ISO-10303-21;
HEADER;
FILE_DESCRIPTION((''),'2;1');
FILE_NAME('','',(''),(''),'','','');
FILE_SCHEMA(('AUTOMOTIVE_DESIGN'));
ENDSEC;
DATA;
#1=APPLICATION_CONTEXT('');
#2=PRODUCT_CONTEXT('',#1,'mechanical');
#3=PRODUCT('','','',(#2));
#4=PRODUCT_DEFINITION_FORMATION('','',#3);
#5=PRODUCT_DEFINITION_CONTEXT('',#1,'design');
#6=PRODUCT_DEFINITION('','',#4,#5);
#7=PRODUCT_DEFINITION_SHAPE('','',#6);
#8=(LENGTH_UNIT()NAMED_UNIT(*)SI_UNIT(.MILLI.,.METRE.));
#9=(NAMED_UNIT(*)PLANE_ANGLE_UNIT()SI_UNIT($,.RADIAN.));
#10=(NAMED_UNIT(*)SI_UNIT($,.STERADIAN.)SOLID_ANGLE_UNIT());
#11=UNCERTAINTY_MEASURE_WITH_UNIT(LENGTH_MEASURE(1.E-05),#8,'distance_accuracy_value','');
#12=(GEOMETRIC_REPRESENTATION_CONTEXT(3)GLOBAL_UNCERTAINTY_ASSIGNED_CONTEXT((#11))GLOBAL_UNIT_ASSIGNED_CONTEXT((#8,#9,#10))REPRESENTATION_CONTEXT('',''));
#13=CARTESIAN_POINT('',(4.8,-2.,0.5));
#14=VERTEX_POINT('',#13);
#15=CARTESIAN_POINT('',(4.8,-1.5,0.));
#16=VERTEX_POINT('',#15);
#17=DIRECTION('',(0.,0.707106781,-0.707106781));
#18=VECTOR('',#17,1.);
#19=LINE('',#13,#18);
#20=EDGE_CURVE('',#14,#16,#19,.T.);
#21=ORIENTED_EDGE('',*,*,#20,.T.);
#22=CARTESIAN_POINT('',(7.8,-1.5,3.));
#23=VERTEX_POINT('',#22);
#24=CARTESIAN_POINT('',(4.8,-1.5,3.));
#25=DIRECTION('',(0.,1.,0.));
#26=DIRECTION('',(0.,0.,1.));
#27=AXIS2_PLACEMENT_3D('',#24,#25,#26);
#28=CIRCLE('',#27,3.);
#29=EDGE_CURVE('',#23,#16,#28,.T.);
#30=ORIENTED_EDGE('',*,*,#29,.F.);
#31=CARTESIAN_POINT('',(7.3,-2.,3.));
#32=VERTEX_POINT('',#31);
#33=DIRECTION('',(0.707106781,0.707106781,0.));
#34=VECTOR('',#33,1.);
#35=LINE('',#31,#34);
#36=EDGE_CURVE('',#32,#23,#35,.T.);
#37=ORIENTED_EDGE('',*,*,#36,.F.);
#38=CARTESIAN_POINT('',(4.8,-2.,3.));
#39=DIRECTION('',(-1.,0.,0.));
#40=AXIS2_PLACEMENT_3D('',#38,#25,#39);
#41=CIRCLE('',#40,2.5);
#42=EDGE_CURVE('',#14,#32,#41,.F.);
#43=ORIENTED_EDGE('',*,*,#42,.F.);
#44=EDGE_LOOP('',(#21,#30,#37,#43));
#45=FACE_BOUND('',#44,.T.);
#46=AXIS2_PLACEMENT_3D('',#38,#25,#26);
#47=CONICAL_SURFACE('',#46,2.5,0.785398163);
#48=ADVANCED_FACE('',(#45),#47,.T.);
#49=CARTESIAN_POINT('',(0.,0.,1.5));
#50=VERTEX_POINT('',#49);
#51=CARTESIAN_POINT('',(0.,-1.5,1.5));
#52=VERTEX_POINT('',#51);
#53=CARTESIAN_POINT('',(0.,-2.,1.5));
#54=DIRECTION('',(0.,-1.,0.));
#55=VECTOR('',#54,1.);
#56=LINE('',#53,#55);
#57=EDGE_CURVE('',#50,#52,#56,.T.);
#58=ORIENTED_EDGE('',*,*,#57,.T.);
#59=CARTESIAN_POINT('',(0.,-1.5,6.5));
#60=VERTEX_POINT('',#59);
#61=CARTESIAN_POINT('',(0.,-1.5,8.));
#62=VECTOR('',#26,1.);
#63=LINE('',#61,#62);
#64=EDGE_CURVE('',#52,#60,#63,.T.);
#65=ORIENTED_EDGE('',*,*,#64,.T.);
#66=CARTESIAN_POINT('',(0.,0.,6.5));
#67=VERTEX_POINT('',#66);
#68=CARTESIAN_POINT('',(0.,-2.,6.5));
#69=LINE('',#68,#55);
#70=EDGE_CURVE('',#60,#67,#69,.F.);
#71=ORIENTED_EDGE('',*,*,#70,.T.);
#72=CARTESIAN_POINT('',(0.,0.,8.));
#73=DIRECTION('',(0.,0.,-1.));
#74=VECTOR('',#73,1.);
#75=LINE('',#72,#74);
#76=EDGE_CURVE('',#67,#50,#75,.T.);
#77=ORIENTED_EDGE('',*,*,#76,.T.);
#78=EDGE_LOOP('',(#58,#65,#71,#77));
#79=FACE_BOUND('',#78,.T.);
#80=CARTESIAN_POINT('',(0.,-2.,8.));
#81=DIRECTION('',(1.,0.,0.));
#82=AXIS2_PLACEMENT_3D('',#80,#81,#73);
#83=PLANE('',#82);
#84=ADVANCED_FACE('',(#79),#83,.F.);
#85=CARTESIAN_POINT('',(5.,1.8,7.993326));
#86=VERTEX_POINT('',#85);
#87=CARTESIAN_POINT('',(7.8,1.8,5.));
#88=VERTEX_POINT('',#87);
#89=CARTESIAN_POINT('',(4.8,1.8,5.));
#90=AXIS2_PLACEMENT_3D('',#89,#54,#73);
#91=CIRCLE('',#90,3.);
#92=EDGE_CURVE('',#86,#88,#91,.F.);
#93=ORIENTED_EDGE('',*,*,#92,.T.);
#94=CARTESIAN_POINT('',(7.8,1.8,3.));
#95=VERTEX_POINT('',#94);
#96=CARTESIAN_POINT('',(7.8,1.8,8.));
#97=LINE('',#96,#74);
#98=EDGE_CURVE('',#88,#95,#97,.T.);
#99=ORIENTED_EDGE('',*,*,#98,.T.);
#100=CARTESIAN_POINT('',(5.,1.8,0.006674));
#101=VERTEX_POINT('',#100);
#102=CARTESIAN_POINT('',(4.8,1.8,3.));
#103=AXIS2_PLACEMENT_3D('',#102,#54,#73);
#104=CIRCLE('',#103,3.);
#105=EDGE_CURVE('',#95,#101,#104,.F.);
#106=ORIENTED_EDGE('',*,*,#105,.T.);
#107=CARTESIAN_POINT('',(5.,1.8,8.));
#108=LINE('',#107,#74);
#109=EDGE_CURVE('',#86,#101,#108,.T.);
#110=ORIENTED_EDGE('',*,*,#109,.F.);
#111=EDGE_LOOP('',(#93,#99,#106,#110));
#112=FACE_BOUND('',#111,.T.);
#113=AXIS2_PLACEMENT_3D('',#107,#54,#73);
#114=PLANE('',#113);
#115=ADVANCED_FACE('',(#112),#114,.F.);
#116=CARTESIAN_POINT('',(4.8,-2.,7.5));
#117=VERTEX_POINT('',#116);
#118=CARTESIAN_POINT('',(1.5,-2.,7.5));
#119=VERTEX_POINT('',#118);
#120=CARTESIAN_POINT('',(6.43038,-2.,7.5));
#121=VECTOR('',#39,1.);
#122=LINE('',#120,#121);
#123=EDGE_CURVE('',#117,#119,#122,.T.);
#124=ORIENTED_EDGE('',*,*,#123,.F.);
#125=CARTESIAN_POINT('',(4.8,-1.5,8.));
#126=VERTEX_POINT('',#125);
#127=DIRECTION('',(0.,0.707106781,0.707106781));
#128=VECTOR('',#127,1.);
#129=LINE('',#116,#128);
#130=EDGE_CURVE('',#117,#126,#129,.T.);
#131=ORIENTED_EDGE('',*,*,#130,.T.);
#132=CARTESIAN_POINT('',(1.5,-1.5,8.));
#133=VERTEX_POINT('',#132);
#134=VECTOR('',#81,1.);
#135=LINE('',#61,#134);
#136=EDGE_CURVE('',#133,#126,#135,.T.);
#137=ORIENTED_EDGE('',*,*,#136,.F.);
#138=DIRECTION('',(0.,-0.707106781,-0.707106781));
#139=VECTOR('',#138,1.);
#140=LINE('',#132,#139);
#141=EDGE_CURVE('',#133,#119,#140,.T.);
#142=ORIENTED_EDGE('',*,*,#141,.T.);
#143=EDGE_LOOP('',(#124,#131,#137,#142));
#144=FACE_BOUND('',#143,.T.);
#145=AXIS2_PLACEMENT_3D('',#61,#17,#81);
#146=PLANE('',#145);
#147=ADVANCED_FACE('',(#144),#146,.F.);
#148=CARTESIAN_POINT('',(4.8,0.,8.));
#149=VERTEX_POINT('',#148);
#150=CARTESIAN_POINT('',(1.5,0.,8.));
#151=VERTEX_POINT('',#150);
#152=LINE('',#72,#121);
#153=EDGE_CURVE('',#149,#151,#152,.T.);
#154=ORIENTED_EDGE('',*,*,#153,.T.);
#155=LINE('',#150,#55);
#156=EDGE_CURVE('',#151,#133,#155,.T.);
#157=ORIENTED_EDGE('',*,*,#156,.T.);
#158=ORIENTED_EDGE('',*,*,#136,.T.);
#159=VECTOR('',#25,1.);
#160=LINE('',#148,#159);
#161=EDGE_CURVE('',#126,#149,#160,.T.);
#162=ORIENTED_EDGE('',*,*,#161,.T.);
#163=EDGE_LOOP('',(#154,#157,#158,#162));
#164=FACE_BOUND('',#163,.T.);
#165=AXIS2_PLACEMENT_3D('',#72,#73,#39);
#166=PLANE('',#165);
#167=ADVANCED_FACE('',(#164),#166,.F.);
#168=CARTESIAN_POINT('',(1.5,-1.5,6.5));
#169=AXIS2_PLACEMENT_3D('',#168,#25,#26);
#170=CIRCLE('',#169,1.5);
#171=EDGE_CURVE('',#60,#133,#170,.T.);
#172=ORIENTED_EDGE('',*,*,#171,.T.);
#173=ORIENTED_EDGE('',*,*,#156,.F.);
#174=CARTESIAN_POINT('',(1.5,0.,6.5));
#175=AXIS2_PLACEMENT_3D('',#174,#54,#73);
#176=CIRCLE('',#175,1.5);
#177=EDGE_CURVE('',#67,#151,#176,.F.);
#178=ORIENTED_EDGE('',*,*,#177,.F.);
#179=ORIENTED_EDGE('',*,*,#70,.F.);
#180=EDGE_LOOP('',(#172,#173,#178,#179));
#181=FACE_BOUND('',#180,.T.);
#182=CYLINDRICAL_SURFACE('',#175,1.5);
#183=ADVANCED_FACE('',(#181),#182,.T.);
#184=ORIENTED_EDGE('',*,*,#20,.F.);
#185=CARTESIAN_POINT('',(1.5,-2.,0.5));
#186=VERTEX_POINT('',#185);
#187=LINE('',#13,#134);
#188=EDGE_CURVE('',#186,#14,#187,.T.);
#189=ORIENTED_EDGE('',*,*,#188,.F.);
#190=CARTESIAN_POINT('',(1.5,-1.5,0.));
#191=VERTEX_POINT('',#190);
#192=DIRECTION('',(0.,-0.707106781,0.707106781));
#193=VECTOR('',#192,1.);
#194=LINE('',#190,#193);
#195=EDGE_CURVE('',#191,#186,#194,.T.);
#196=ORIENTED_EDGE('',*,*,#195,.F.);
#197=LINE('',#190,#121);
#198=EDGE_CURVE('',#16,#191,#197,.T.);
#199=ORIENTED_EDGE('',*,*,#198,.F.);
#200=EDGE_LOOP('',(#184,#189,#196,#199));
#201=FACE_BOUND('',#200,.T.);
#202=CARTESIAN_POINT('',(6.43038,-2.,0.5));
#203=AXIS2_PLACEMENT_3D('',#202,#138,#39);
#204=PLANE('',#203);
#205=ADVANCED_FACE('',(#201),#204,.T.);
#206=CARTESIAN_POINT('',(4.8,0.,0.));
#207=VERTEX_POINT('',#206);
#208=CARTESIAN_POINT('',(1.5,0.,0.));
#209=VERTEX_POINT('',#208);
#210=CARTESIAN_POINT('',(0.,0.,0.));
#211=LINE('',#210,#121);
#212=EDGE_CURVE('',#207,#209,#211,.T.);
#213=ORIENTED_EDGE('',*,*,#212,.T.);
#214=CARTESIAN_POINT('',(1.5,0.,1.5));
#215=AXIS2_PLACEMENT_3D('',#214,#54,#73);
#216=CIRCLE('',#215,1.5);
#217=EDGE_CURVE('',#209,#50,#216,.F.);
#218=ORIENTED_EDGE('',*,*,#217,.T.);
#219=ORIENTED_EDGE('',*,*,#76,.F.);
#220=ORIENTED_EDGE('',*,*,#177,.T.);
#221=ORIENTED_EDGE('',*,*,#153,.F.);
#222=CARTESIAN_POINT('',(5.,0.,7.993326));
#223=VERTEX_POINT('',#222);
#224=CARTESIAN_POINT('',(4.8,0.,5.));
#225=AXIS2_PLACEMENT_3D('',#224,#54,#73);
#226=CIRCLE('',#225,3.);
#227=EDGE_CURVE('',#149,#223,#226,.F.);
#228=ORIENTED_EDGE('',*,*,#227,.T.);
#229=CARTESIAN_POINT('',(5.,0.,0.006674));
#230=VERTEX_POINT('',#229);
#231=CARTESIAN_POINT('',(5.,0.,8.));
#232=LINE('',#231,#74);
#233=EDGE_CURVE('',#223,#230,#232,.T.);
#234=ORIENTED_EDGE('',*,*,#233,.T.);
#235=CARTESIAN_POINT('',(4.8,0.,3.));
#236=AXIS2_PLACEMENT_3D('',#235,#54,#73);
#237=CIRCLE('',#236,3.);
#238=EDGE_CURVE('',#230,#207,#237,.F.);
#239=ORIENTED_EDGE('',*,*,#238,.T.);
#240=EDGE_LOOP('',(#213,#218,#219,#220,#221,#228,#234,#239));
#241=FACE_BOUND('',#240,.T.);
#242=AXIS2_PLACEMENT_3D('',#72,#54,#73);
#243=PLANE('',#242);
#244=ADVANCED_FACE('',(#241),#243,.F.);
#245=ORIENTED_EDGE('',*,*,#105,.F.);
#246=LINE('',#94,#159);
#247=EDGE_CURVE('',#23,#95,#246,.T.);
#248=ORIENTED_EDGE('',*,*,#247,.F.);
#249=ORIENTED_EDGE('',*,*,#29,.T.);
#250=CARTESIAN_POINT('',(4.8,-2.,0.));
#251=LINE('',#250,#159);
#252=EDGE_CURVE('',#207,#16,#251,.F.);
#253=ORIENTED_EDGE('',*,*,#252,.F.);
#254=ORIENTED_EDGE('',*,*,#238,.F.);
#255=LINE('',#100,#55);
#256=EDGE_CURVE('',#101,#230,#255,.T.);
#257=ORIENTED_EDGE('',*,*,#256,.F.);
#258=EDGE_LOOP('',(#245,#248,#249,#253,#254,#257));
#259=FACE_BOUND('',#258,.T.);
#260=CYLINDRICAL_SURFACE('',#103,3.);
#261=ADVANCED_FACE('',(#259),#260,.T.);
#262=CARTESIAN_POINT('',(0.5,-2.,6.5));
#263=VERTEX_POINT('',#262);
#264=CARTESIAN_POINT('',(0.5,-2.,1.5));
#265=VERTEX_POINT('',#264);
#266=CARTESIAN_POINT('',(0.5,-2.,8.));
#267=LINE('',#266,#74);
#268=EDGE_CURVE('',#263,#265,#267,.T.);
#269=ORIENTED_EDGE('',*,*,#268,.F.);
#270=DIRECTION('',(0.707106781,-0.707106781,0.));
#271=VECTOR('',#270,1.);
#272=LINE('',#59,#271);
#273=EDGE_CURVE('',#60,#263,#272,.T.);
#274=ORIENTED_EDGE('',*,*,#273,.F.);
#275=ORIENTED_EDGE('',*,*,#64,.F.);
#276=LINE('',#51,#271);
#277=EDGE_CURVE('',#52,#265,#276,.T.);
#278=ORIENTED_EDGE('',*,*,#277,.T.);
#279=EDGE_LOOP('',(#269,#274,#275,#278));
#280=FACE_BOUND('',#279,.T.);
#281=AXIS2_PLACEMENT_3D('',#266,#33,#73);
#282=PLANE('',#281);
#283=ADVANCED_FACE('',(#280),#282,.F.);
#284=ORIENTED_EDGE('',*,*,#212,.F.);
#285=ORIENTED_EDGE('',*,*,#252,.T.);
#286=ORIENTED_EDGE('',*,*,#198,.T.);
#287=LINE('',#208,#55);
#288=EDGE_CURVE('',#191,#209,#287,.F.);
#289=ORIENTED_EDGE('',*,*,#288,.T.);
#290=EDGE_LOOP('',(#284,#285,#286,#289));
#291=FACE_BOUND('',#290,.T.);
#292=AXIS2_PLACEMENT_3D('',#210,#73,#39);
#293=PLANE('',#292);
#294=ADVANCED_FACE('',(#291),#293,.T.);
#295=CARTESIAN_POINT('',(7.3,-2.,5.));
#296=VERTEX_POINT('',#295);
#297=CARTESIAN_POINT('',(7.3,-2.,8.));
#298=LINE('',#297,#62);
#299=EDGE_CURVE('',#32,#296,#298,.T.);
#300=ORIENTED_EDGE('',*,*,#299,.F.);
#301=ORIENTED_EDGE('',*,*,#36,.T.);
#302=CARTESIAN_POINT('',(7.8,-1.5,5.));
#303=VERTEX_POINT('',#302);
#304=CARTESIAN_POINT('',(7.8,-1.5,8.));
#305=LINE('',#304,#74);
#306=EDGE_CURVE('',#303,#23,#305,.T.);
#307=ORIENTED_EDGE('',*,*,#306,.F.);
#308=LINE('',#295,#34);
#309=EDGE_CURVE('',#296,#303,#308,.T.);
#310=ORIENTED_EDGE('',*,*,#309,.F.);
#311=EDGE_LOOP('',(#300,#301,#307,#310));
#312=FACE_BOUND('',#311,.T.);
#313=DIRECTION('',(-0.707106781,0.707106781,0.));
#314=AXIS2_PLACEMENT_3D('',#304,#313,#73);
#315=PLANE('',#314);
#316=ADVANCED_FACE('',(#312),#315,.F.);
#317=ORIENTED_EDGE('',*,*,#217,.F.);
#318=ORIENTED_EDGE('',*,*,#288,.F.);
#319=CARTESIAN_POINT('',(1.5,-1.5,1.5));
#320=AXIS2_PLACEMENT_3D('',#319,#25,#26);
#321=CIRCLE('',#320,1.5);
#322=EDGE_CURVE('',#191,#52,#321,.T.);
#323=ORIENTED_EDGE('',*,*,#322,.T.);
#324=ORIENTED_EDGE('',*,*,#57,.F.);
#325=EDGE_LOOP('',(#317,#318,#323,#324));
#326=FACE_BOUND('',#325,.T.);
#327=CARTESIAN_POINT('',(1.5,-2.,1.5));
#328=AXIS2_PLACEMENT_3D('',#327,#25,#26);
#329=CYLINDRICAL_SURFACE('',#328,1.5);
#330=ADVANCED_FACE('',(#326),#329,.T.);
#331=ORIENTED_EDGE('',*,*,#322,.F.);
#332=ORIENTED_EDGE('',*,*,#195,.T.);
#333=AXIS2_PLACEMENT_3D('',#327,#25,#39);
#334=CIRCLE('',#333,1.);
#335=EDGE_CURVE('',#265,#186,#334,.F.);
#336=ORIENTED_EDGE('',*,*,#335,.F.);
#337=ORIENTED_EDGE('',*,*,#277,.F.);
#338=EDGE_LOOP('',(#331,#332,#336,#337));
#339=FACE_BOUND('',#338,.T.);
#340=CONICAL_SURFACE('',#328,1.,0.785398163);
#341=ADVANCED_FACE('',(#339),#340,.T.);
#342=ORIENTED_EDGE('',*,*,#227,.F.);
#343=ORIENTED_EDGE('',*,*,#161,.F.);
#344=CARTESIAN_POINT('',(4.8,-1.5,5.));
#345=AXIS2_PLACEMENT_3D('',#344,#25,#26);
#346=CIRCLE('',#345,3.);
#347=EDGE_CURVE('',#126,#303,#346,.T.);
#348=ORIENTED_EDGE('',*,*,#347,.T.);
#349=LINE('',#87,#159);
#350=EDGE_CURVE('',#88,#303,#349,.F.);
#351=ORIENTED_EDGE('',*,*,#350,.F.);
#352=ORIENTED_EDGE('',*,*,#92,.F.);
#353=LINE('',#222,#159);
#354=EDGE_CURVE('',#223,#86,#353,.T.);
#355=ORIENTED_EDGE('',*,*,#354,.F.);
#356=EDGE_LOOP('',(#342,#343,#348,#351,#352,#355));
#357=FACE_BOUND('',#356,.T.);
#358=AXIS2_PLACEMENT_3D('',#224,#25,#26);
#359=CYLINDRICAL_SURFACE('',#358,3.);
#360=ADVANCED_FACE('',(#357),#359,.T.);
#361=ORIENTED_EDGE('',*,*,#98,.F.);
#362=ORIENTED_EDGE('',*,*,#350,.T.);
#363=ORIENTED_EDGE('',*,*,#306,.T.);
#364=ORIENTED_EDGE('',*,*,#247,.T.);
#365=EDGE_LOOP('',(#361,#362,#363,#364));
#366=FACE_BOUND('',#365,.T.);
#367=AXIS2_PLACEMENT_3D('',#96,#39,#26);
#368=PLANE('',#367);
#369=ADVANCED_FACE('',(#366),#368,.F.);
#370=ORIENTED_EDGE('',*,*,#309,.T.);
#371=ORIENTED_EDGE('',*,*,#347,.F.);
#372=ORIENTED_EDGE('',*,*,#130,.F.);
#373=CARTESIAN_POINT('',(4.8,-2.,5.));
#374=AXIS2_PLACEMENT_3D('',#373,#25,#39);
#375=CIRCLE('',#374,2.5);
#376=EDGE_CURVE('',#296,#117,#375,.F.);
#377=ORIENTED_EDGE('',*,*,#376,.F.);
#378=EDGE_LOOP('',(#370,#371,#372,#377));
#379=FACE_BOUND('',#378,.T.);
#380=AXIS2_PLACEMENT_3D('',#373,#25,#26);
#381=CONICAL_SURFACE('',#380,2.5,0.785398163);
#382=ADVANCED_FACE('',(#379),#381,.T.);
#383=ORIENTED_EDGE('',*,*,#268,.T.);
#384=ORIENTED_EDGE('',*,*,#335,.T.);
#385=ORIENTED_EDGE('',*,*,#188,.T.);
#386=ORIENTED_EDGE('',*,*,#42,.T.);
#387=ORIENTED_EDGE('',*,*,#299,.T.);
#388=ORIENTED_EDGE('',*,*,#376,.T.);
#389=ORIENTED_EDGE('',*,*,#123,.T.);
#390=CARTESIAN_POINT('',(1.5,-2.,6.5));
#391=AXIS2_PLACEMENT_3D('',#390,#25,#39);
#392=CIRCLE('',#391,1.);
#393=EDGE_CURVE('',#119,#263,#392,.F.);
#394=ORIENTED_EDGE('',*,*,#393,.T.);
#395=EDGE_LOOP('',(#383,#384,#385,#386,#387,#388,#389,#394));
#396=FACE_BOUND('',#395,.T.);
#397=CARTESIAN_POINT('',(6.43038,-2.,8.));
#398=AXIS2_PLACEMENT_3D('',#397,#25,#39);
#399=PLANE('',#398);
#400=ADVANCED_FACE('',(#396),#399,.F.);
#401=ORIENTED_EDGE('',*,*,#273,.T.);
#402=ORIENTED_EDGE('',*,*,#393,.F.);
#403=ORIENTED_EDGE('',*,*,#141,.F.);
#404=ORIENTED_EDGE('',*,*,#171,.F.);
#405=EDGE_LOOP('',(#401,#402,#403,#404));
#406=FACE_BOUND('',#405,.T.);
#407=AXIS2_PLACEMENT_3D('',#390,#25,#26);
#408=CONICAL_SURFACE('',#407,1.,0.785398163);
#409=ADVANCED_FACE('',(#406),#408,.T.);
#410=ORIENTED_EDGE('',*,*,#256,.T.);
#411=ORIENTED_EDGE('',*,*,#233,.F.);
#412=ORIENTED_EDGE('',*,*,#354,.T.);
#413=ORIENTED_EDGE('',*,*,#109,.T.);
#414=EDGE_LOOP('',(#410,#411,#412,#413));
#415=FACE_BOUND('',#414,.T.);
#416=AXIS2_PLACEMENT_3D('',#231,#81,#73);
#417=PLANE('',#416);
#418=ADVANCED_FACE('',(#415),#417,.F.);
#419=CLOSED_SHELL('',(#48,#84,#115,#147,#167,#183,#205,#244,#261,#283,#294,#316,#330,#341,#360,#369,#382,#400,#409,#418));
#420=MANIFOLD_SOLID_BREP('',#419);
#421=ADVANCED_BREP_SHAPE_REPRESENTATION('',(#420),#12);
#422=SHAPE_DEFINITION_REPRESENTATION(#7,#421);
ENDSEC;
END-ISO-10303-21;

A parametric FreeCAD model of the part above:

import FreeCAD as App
import Part
import Sketcher

V = App.Vector
Q = App.Units.Quantity


def edges_at(feature, points):
    """Names of the edges that pass closest to the given points."""
    edges = feature.Shape.Edges
    near = lambda p: min(range(len(edges)), key=lambda i: edges[i].distToShape(Part.Vertex(*p))[0])
    return sorted({f"Edge{near(p) + 1}" for p in points})


def add_polygon(sketch, points):
    """Adds a closed chain of lines whose ends are joined by coincident constraints."""
    first, n = sketch.GeometryCount, len(points)
    for a, b in zip(points, points[1:] + points[:1]):
        sketch.addGeometry(Part.LineSegment(App.Vector(*a, 0), App.Vector(*b, 0)), False)
    for i in range(n):
        sketch.addConstraint(Sketcher.Constraint("Coincident", first + i, 2, first + (i + 1) % n, 1))

doc = App.newDocument("Part")
body = doc.addObject("PartDesign::Body", "Body")

# Sketch on XY plane
sketch1 = body.newObject("Sketcher::SketchObject", "Sketch")
sketch1.AttachmentSupport = (doc.getObject("XY_Plane"), [""])
sketch1.MapMode = "FlatFace"
add_polygon(sketch1, [(5, 0), (0, 0), (0, -2), (7.8, -2), (7.8, 1.8), (5, 1.8)])  # lines 0-5
sketch1.addConstraint(Sketcher.Constraint("Horizontal", 0))
sketch1.addConstraint(Sketcher.Constraint("Vertical", 1))
sketch1.addConstraint(Sketcher.Constraint("Horizontal", 2))
sketch1.addConstraint(Sketcher.Constraint("Vertical", 3))
sketch1.addConstraint(Sketcher.Constraint("Horizontal", 4))
sketch1.addConstraint(Sketcher.Constraint("Vertical", 5))
sketch1.addConstraint(Sketcher.Constraint("Coincident", 0, 2, -1, 1))
sketch1.addConstraint(Sketcher.Constraint("DistanceX", 0, 2, 0, 1, Q("5 mm")))
sketch1.addConstraint(Sketcher.Constraint("DistanceY", 1, 2, 1, 1, Q("2 mm")))
sketch1.addConstraint(Sketcher.Constraint("DistanceX", 2, 1, 2, 2, Q("7.8 mm")))
sketch1.addConstraint(Sketcher.Constraint("DistanceY", 3, 1, 3, 2, Q("3.8 mm")))
pad1 = body.newObject("PartDesign::Pad", "Pad")
pad1.Profile = sketch1
pad1.Length = 8
doc.recompute()

fillet = body.newObject("PartDesign::Fillet", "Fillet")
fillet.Base = (pad1, edges_at(pad1, [(7.8, -0.1, 0), (7.8, -0.1, 8)]))
fillet.Radius = 3
doc.recompute()

fillet2 = body.newObject("PartDesign::Fillet", "Fillet001")
fillet2.Base = (fillet, edges_at(fillet, [(0, -1, 0), (0, -1, 8)]))
fillet2.Radius = 1.5
doc.recompute()

chamfer = body.newObject("PartDesign::Chamfer", "Chamfer")
chamfer.Base = (fillet2, edges_at(fillet2, [
    (7.8, -2, 4),
    (6.921, -2, 7.121),
    (6.921, -2, 0.879),
    (0, -2, 4),
    (3.15, -2, 0),
    (3.15, -2, 8),
    (0.439, -2, 7.561),
    (0.439, -2, 0.439),
]))
chamfer.Size = 0.5

doc.recompute()
